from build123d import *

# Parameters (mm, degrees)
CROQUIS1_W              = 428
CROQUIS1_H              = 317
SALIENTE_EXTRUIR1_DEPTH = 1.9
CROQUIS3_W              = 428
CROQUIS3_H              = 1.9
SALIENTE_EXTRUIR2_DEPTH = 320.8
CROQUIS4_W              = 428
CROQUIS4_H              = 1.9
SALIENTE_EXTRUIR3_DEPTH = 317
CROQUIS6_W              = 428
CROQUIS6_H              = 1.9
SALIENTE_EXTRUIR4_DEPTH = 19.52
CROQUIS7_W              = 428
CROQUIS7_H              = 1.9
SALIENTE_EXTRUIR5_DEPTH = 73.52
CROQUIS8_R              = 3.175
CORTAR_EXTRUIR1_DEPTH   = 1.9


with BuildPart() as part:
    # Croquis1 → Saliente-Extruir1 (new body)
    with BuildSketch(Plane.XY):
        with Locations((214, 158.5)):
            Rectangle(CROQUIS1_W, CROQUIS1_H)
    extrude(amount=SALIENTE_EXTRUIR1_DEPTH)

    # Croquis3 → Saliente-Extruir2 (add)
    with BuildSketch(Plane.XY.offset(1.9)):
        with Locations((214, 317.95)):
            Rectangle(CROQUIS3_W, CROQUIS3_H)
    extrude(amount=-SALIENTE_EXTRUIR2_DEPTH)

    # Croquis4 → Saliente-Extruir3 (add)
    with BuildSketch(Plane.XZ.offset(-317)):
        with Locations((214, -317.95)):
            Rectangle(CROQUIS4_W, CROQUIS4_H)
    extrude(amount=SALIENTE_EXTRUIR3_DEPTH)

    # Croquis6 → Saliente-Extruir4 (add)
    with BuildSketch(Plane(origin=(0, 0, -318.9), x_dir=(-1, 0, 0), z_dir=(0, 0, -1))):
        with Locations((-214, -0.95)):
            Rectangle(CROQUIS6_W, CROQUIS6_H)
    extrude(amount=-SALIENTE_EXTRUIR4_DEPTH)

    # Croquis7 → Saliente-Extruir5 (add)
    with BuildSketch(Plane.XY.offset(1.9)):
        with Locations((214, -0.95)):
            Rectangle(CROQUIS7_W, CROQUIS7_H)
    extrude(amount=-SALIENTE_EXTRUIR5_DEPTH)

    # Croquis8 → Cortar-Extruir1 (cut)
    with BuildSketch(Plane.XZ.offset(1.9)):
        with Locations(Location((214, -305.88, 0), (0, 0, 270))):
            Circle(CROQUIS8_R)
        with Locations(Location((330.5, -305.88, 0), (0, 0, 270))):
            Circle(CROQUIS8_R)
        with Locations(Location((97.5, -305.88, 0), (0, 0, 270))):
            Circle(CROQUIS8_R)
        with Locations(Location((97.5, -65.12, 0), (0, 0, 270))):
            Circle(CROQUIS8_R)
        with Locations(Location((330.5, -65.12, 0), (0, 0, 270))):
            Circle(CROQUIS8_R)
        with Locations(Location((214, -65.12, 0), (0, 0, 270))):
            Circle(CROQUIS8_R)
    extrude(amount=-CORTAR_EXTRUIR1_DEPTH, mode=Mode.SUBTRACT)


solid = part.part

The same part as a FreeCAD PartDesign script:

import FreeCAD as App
import Part
import Sketcher
from FreeCAD import Vector
Q = App.Units.Quantity


def add_polygon(sketch, points):
    """Adds a closed chain of lines whose ends are joined by coincident constraints."""
    first, n = sketch.GeometryCount, len(points)
    for a, b in zip(points, points[1:] + points[:1]):
        sketch.addGeometry(Part.LineSegment(App.Vector(*a, 0), App.Vector(*b, 0)), False)
    for i in range(n):
        sketch.addConstraint(Sketcher.Constraint("Coincident", first + i, 2, first + (i + 1) % n, 1))

doc = App.newDocument("Part")
body = doc.addObject("PartDesign::Body", "Body")

# Sketch on XY plane
sketch1 = doc.addObject("Sketcher::SketchObject", "Sketch")
body.addObject(sketch1)
sketch1.AttachmentSupport = (doc.XY_Plane, [""])
sketch1.MapMode = "FlatFace"
add_polygon(sketch1, [(0, 317), (0, 0), (428, 0), (428, 317)])  # lines 0-3
sketch1.addConstraint([
    Sketcher.Constraint("Vertical", 0),
    Sketcher.Constraint("Horizontal", 1),
    Sketcher.Constraint("Vertical", 2),
    Sketcher.Constraint("Horizontal", 3),
    Sketcher.Constraint("Coincident", 0, 2, -1, 1),
    Sketcher.Constraint("DistanceX", 1, 1, 1, 2, Q("428 mm")),
    Sketcher.Constraint("DistanceY", 0, 2, 0, 1, Q("317 mm")),
])
pad1 = doc.addObject("PartDesign::Pad", "Pad")
body.addObject(pad1)
pad1.Profile = sketch1
pad1.Length = 1.9

# Sketch on XY plane
sketch2 = doc.addObject("Sketcher::SketchObject", "Sketch001")
body.addObject(sketch2)
sketch2.AttachmentSupport = (doc.XY_Plane, [""])
sketch2.MapMode = "FlatFace"
sketch2.AttachmentOffset = App.Placement(Vector(0, 0, 1.9), App.Rotation())
add_polygon(sketch2, [(0, 318.9), (0, 317), (428, 317), (428, 318.9)])  # lines 0-3
sketch2.addConstraint([
    Sketcher.Constraint("Vertical", 0),
    Sketcher.Constraint("Horizontal", 1),
    Sketcher.Constraint("Vertical", 2),
    Sketcher.Constraint("Horizontal", 3),
    Sketcher.Constraint("PointOnObject", 0, 2, -2),
    Sketcher.Constraint("DistanceX", 1, 1, 1, 2, Q("428 mm")),
    Sketcher.Constraint("DistanceY", 0, 2, 0, 1, Q("1.9 mm")),
    Sketcher.Constraint("DistanceY", -1, 1, 0, 2, Q("317 mm")),
])
pad2 = doc.addObject("PartDesign::Pad", "Pad001")
body.addObject(pad2)
pad2.Profile = sketch2
pad2.Length = 320.8
pad2.Reversed = True

# Sketch on XZ plane
sketch3 = doc.addObject("Sketcher::SketchObject", "Sketch002")
body.addObject(sketch3)
sketch3.AttachmentSupport = (doc.XZ_Plane, [""])
sketch3.MapMode = "FlatFace"
sketch3.AttachmentOffset = App.Placement(Vector(0, 0, -317), App.Rotation())
add_polygon(sketch3, [(0, -317), (0, -318.9), (428, -318.9), (428, -317)])  # lines 0-3
sketch3.addConstraint([
    Sketcher.Constraint("Vertical", 0),
    Sketcher.Constraint("Horizontal", 1),
    Sketcher.Constraint("Vertical", 2),
    Sketcher.Constraint("Horizontal", 3),
    Sketcher.Constraint("PointOnObject", 0, 2, -2),
    Sketcher.Constraint("DistanceX", 1, 1, 1, 2, Q("428 mm")),
    Sketcher.Constraint("DistanceY", 0, 2, 0, 1, Q("1.9 mm")),
    Sketcher.Constraint("DistanceY", 2, 2, -1, 1, Q("317 mm")),
])
pad3 = doc.addObject("PartDesign::Pad", "Pad002")
body.addObject(pad3)
pad3.Profile = sketch3
pad3.Length = 317

# Sketch on XY plane
sketch4 = doc.addObject("Sketcher::SketchObject", "Sketch003")
body.addObject(sketch4)
sketch4.AttachmentSupport = (doc.XY_Plane, [""])
sketch4.MapMode = "FlatFace"
sketch4.AttachmentOffset = App.Placement(Vector(0, 0, -318.9), App.Rotation())
add_polygon(sketch4, [(428, 0), (428, -1.9), (0, -1.9), (0, 0)])  # lines 0-3
sketch4.addConstraint([
    Sketcher.Constraint("Vertical", 0),
    Sketcher.Constraint("Horizontal", 1),
    Sketcher.Constraint("Vertical", 2),
    Sketcher.Constraint("Horizontal", 3),
    Sketcher.Constraint("Coincident", 2, 2, -1, 1),
    Sketcher.Constraint("DistanceX", 1, 2, 1, 1, Q("428 mm")),
    Sketcher.Constraint("DistanceY", 0, 2, 0, 1, Q("1.9 mm")),
])
pad4 = doc.addObject("PartDesign::Pad", "Pad003")
body.addObject(pad4)
pad4.Profile = sketch4
pad4.Length = 19.52

# Sketch on XY plane
sketch5 = doc.addObject("Sketcher::SketchObject", "Sketch004")
body.addObject(sketch5)
sketch5.AttachmentSupport = (doc.XY_Plane, [""])
sketch5.MapMode = "FlatFace"
sketch5.AttachmentOffset = App.Placement(Vector(0, 0, 1.9), App.Rotation())
add_polygon(sketch5, [(0, 0), (0, -1.9), (428, -1.9), (428, 0)])  # lines 0-3
sketch5.addConstraint([
    Sketcher.Constraint("Vertical", 0),
    Sketcher.Constraint("Horizontal", 1),
    Sketcher.Constraint("Vertical", 2),
    Sketcher.Constraint("Horizontal", 3),
    Sketcher.Constraint("Coincident", 3, 2, -1, 1),
    Sketcher.Constraint("DistanceX", 1, 1, 1, 2, Q("428 mm")),
    Sketcher.Constraint("DistanceY", 0, 2, 0, 1, Q("1.9 mm")),
])
pad5 = doc.addObject("PartDesign::Pad", "Pad004")
body.addObject(pad5)
pad5.Profile = sketch5
pad5.Length = 73.52
pad5.Reversed = True

# Sketch on XZ plane
sketch6 = doc.addObject("Sketcher::SketchObject", "Sketch005")
body.addObject(sketch6)
sketch6.AttachmentSupport = (doc.XZ_Plane, [""])
sketch6.MapMode = "FlatFace"
sketch6.AttachmentOffset = App.Placement(Vector(0, 0, 1.9), App.Rotation())
sketch6.addGeometry([
    Part.Circle(Vector(214, -305.9, 0), Vector(0, 0, 1), 3.2),  # 0
    Part.Circle(Vector(330.5, -305.9, 0), Vector(0, 0, 1), 3.2),  # 1
    Part.Circle(Vector(97.5, -305.9, 0), Vector(0, 0, 1), 3.2),  # 2
    Part.Circle(Vector(97.5, -65.1, 0), Vector(0, 0, 1), 3.2),  # 3
    Part.Circle(Vector(330.5, -65.1, 0), Vector(0, 0, 1), 3.2),  # 4
    Part.Circle(Vector(214, -65.1, 0), Vector(0, 0, 1), 3.2),  # 5
], False)
sketch6.addConstraint([
    Sketcher.Constraint("Equal", 0, 1),
    Sketcher.Constraint("Equal", 1, 2),
    Sketcher.Constraint("Equal", 2, 3),
    Sketcher.Constraint("Equal", 3, 4),
    Sketcher.Constraint("Equal", 4, 5),
    Sketcher.Constraint("Horizontal", 0, 3, 1, 3),
    Sketcher.Constraint("Horizontal", 1, 3, 2, 3),
    Sketcher.Constraint("Horizontal", 3, 3, 4, 3),
    Sketcher.Constraint("Horizontal", 4, 3, 5, 3),
    Sketcher.Constraint("Vertical", 2, 3, 3, 3),
    Sketcher.Constraint("Vertical", 1, 3, 4, 3),
    Sketcher.Constraint("Vertical", 0, 3, 5, 3),
    Sketcher.Constraint("Diameter", 0, Q("6.35 mm")),
    Sketcher.Constraint("DistanceX", -1, 1, 0, 3, Q("214 mm")),
    Sketcher.Constraint("DistanceX", 2, 3, 1, 3, Q("233 mm")),
    Sketcher.Constraint("DistanceX", -1, 1, 1, 3, Q("330.5 mm")),
    Sketcher.Constraint("DistanceY", 0, 3, -1, 1, Q("305.88 mm")),
    Sketcher.Constraint("DistanceY", 3, 3, -1, 1, Q("65.12 mm")),
])
pocket1 = doc.addObject("PartDesign::Pocket", "Pocket")
body.addObject(pocket1)
pocket1.Profile = sketch6
pocket1.Length = 1.9

doc.recompute()
